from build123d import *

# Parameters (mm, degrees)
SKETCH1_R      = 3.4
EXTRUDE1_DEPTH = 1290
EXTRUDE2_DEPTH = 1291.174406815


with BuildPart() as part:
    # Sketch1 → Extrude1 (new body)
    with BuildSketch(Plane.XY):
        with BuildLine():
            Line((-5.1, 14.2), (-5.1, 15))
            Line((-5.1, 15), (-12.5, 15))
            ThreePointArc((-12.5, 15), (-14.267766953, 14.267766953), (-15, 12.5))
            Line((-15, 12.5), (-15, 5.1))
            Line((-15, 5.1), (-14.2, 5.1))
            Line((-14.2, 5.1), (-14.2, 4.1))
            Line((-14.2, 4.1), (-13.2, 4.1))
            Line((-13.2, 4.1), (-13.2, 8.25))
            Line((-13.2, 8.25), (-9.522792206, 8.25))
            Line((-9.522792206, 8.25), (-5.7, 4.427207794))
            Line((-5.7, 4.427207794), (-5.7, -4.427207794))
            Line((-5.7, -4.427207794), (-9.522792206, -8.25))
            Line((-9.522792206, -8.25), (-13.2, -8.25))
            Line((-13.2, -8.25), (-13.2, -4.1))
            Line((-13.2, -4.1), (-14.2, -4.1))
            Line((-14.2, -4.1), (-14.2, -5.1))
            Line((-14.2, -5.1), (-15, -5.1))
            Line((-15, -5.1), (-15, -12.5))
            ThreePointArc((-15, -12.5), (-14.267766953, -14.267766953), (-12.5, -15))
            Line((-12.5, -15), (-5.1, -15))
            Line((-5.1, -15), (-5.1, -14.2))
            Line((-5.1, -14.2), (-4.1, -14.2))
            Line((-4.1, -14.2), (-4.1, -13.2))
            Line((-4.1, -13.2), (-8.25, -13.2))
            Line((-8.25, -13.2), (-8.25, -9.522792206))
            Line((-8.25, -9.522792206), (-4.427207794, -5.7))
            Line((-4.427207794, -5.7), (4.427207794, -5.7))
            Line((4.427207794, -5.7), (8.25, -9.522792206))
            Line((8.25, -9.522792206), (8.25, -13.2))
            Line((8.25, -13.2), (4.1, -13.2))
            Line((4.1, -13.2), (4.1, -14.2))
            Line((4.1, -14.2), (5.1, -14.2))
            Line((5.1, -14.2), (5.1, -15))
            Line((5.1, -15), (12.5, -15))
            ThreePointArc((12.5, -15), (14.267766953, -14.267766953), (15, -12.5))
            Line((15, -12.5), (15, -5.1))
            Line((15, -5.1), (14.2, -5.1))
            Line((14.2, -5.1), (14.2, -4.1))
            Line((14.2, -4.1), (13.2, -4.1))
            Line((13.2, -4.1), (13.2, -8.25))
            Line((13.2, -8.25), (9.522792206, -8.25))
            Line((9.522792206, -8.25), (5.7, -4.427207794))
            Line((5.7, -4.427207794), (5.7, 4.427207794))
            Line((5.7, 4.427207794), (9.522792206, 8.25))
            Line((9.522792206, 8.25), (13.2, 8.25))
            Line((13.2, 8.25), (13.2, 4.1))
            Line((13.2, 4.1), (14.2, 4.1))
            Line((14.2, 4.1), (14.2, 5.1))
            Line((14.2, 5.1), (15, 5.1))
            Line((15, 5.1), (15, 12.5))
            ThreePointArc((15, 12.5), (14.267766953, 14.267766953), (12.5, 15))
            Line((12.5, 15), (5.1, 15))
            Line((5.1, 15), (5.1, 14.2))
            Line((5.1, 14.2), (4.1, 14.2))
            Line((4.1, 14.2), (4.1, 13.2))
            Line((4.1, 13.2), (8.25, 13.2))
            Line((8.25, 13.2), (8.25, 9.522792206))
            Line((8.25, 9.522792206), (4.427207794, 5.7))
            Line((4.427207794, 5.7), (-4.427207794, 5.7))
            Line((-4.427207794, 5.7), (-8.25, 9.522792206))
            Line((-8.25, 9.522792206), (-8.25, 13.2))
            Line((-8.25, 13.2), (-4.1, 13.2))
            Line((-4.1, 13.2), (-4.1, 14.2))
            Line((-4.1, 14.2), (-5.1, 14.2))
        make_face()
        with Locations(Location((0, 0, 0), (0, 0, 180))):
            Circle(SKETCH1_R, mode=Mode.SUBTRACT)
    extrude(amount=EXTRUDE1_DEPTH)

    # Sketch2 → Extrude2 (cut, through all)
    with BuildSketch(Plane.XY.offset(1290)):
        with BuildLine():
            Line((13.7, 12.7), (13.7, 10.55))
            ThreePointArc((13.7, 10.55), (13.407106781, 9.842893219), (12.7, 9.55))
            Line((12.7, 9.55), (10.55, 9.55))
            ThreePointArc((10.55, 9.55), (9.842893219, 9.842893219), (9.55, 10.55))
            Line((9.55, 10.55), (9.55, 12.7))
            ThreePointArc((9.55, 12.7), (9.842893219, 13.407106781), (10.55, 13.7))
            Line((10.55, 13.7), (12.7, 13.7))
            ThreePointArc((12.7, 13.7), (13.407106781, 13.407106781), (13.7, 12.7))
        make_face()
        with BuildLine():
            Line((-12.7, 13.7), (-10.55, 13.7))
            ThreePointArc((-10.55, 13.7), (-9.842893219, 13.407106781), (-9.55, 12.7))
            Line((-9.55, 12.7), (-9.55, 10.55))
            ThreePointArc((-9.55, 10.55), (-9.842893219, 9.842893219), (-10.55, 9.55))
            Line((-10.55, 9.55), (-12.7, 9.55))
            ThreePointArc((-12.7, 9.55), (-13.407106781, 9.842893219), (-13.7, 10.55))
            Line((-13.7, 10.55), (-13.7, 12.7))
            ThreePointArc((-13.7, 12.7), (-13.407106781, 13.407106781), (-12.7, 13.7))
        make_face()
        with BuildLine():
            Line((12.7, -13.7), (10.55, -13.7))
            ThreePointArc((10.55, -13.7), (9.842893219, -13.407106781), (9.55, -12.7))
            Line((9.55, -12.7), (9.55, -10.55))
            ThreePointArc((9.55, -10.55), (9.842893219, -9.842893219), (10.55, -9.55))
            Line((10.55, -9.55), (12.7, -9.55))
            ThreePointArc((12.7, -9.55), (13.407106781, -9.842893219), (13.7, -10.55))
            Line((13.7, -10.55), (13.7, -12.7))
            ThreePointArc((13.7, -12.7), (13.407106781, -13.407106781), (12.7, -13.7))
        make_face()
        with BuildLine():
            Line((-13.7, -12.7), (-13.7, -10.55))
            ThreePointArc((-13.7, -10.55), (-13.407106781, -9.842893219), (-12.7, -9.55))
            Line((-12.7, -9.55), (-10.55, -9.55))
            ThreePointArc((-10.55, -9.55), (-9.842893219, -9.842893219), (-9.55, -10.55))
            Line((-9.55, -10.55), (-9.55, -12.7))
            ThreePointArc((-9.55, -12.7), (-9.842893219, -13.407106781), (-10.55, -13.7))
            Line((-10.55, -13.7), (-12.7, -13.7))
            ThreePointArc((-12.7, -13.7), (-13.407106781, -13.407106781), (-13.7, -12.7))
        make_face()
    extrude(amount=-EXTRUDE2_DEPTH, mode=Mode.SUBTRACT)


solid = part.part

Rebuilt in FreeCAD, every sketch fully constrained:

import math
import FreeCAD as App
import Part
import Sketcher
Q = App.Units.Quantity

doc = App.newDocument("Part")
body = doc.addObject("PartDesign::Body", "Body")

# Sketch on XY plane
sketch1 = doc.addObject("Sketcher::SketchObject", "Sketch")
body.addObject(sketch1)
sketch1.AttachmentSupport = (doc.XY_Plane, [""])
sketch1.MapMode = "FlatFace"
sketch1.addGeometry([
    Part.LineSegment(App.Vector(-5.1, 14.2, 0), App.Vector(-5.1, 15, 0)),  # 0
    Part.LineSegment(App.Vector(-5.1, 15, 0), App.Vector(-12.5, 15, 0)),  # 1
    Part.ArcOfCircle(Part.Circle(App.Vector(-12.5, 12.5, 0), App.Vector(0, 0, 1), 2.5), math.radians(90), math.radians(180)),  # 2
    Part.LineSegment(App.Vector(-15, 12.5, 0), App.Vector(-15, 5.1, 0)),  # 3
    Part.LineSegment(App.Vector(-15, 5.1, 0), App.Vector(-14.2, 5.1, 0)),  # 4
    Part.LineSegment(App.Vector(-14.2, 5.1, 0), App.Vector(-14.2, 4.1, 0)),  # 5
    Part.LineSegment(App.Vector(-14.2, 4.1, 0), App.Vector(-13.2, 4.1, 0)),  # 6
    Part.LineSegment(App.Vector(-13.2, 4.1, 0), App.Vector(-13.2, 8.2, 0)),  # 7
    Part.LineSegment(App.Vector(-13.2, 8.2, 0), App.Vector(-9.5, 8.2, 0)),  # 8
    Part.LineSegment(App.Vector(-9.5, 8.2, 0), App.Vector(-5.7, 4.4, 0)),  # 9
    Part.LineSegment(App.Vector(-5.7, 4.4, 0), App.Vector(-5.7, -4.4, 0)),  # 10
    Part.LineSegment(App.Vector(-5.7, -4.4, 0), App.Vector(-9.5, -8.2, 0)),  # 11
    Part.LineSegment(App.Vector(-9.5, -8.2, 0), App.Vector(-13.2, -8.2, 0)),  # 12
    Part.LineSegment(App.Vector(-13.2, -8.2, 0), App.Vector(-13.2, -4.1, 0)),  # 13
    Part.LineSegment(App.Vector(-13.2, -4.1, 0), App.Vector(-14.2, -4.1, 0)),  # 14
    Part.LineSegment(App.Vector(-14.2, -4.1, 0), App.Vector(-14.2, -5.1, 0)),  # 15
    Part.LineSegment(App.Vector(-14.2, -5.1, 0), App.Vector(-15, -5.1, 0)),  # 16
    Part.LineSegment(App.Vector(-15, -5.1, 0), App.Vector(-15, -12.5, 0)),  # 17
    Part.ArcOfCircle(Part.Circle(App.Vector(-12.5, -12.5, 0), App.Vector(0, 0, 1), 2.5), math.radians(180), math.radians(270)),  # 18
    Part.LineSegment(App.Vector(-12.5, -15, 0), App.Vector(-5.1, -15, 0)),  # 19
    Part.LineSegment(App.Vector(-5.1, -15, 0), App.Vector(-5.1, -14.2, 0)),  # 20
    Part.LineSegment(App.Vector(-5.1, -14.2, 0), App.Vector(-4.1, -14.2, 0)),  # 21
    Part.LineSegment(App.Vector(-4.1, -14.2, 0), App.Vector(-4.1, -13.2, 0)),  # 22
    Part.LineSegment(App.Vector(-4.1, -13.2, 0), App.Vector(-8.2, -13.2, 0)),  # 23
    Part.LineSegment(App.Vector(-8.2, -13.2, 0), App.Vector(-8.2, -9.5, 0)),  # 24
    Part.LineSegment(App.Vector(-8.2, -9.5, 0), App.Vector(-4.4, -5.7, 0)),  # 25
    Part.LineSegment(App.Vector(-4.4, -5.7, 0), App.Vector(4.4, -5.7, 0)),  # 26
    Part.LineSegment(App.Vector(4.4, -5.7, 0), App.Vector(8.2, -9.5, 0)),  # 27
    Part.LineSegment(App.Vector(8.2, -9.5, 0), App.Vector(8.2, -13.2, 0)),  # 28
    Part.LineSegment(App.Vector(8.2, -13.2, 0), App.Vector(4.1, -13.2, 0)),  # 29
    Part.LineSegment(App.Vector(4.1, -13.2, 0), App.Vector(4.1, -14.2, 0)),  # 30
    Part.LineSegment(App.Vector(4.1, -14.2, 0), App.Vector(5.1, -14.2, 0)),  # 31
    Part.LineSegment(App.Vector(5.1, -14.2, 0), App.Vector(5.1, -15, 0)),  # 32
    Part.LineSegment(App.Vector(5.1, -15, 0), App.Vector(12.5, -15, 0)),  # 33
    Part.ArcOfCircle(Part.Circle(App.Vector(12.5, -12.5, 0), App.Vector(0, 0, 1), 2.5), math.radians(-90), math.radians(0)),  # 34
    Part.LineSegment(App.Vector(15, -12.5, 0), App.Vector(15, -5.1, 0)),  # 35
    Part.LineSegment(App.Vector(15, -5.1, 0), App.Vector(14.2, -5.1, 0)),  # 36
    Part.LineSegment(App.Vector(14.2, -5.1, 0), App.Vector(14.2, -4.1, 0)),  # 37
    Part.LineSegment(App.Vector(14.2, -4.1, 0), App.Vector(13.2, -4.1, 0)),  # 38
    Part.LineSegment(App.Vector(13.2, -4.1, 0), App.Vector(13.2, -8.2, 0)),  # 39
    Part.LineSegment(App.Vector(13.2, -8.2, 0), App.Vector(9.5, -8.2, 0)),  # 40
    Part.LineSegment(App.Vector(9.5, -8.2, 0), App.Vector(5.7, -4.4, 0)),  # 41
    Part.LineSegment(App.Vector(5.7, -4.4, 0), App.Vector(5.7, 4.4, 0)),  # 42
    Part.LineSegment(App.Vector(5.7, 4.4, 0), App.Vector(9.5, 8.2, 0)),  # 43
    Part.LineSegment(App.Vector(9.5, 8.2, 0), App.Vector(13.2, 8.2, 0)),  # 44
    Part.LineSegment(App.Vector(13.2, 8.2, 0), App.Vector(13.2, 4.1, 0)),  # 45
    Part.LineSegment(App.Vector(13.2, 4.1, 0), App.Vector(14.2, 4.1, 0)),  # 46
    Part.LineSegment(App.Vector(14.2, 4.1, 0), App.Vector(14.2, 5.1, 0)),  # 47
    Part.LineSegment(App.Vector(14.2, 5.1, 0), App.Vector(15, 5.1, 0)),  # 48
    Part.LineSegment(App.Vector(15, 5.1, 0), App.Vector(15, 12.5, 0)),  # 49
    Part.ArcOfCircle(Part.Circle(App.Vector(12.5, 12.5, 0), App.Vector(0, 0, 1), 2.5), math.radians(0), math.radians(90)),  # 50
    Part.LineSegment(App.Vector(12.5, 15, 0), App.Vector(5.1, 15, 0)),  # 51
    Part.LineSegment(App.Vector(5.1, 15, 0), App.Vector(5.1, 14.2, 0)),  # 52
    Part.LineSegment(App.Vector(5.1, 14.2, 0), App.Vector(4.1, 14.2, 0)),  # 53
    Part.LineSegment(App.Vector(4.1, 14.2, 0), App.Vector(4.1, 13.2, 0)),  # 54
    Part.LineSegment(App.Vector(4.1, 13.2, 0), App.Vector(8.2, 13.2, 0)),  # 55
    Part.LineSegment(App.Vector(8.2, 13.2, 0), App.Vector(8.2, 9.5, 0)),  # 56
    Part.LineSegment(App.Vector(8.2, 9.5, 0), App.Vector(4.4, 5.7, 0)),  # 57
    Part.LineSegment(App.Vector(4.4, 5.7, 0), App.Vector(-4.4, 5.7, 0)),  # 58
    Part.LineSegment(App.Vector(-4.4, 5.7, 0), App.Vector(-8.2, 9.5, 0)),  # 59
    Part.LineSegment(App.Vector(-8.2, 9.5, 0), App.Vector(-8.2, 13.2, 0)),  # 60
    Part.LineSegment(App.Vector(-8.2, 13.2, 0), App.Vector(-4.1, 13.2, 0)),  # 61
    Part.LineSegment(App.Vector(-4.1, 13.2, 0), App.Vector(-4.1, 14.2, 0)),  # 62
    Part.LineSegment(App.Vector(-4.1, 14.2, 0), App.Vector(-5.1, 14.2, 0)),  # 63
    Part.Circle(App.Vector(0, 0, 0), App.Vector(0, 0, 1), 3.4),  # 64
], False)
sketch1.addConstraint([
    Sketcher.Constraint("Coincident", 0, 2, 1, 1),
    Sketcher.Constraint("Tangent", 1, 2, 2, 1),
    Sketcher.Constraint("Tangent", 2, 2, 3, 1),
    Sketcher.Constraint("Coincident", 3, 2, 4, 1),
    Sketcher.Constraint("Coincident", 4, 2, 5, 1),
    Sketcher.Constraint("Coincident", 5, 2, 6, 1),
    Sketcher.Constraint("Coincident", 6, 2, 7, 1),
    Sketcher.Constraint("Coincident", 7, 2, 8, 1),
    Sketcher.Constraint("Coincident", 8, 2, 9, 1),
    Sketcher.Constraint("Coincident", 9, 2, 10, 1),
    Sketcher.Constraint("Coincident", 10, 2, 11, 1),
    Sketcher.Constraint("Coincident", 11, 2, 12, 1),
    Sketcher.Constraint("Coincident", 12, 2, 13, 1),
    Sketcher.Constraint("Coincident", 13, 2, 14, 1),
    Sketcher.Constraint("Coincident", 14, 2, 15, 1),
    Sketcher.Constraint("Coincident", 15, 2, 16, 1),
    Sketcher.Constraint("Coincident", 16, 2, 17, 1),
    Sketcher.Constraint("Tangent", 17, 2, 18, 1),
    Sketcher.Constraint("Tangent", 18, 2, 19, 1),
    Sketcher.Constraint("Coincident", 19, 2, 20, 1),
    Sketcher.Constraint("Coincident", 20, 2, 21, 1),
    Sketcher.Constraint("Coincident", 21, 2, 22, 1),
    Sketcher.Constraint("Coincident", 22, 2, 23, 1),
    Sketcher.Constraint("Coincident", 23, 2, 24, 1),
    Sketcher.Constraint("Coincident", 24, 2, 25, 1),
    Sketcher.Constraint("Coincident", 25, 2, 26, 1),
    Sketcher.Constraint("Coincident", 26, 2, 27, 1),
    Sketcher.Constraint("Coincident", 27, 2, 28, 1),
    Sketcher.Constraint("Coincident", 28, 2, 29, 1),
    Sketcher.Constraint("Coincident", 29, 2, 30, 1),
    Sketcher.Constraint("Coincident", 30, 2, 31, 1),
    Sketcher.Constraint("Coincident", 31, 2, 32, 1),
    Sketcher.Constraint("Coincident", 32, 2, 33, 1),
    Sketcher.Constraint("Tangent", 33, 2, 34, 1),
    Sketcher.Constraint("Tangent", 34, 2, 35, 1),
    Sketcher.Constraint("Coincident", 35, 2, 36, 1),
    Sketcher.Constraint("Coincident", 36, 2, 37, 1),
    Sketcher.Constraint("Coincident", 37, 2, 38, 1),
    Sketcher.Constraint("Coincident", 38, 2, 39, 1),
    Sketcher.Constraint("Coincident", 39, 2, 40, 1),
    Sketcher.Constraint("Coincident", 40, 2, 41, 1),
    Sketcher.Constraint("Coincident", 41, 2, 42, 1),
    Sketcher.Constraint("Coincident", 42, 2, 43, 1),
    Sketcher.Constraint("Coincident", 43, 2, 44, 1),
    Sketcher.Constraint("Coincident", 44, 2, 45, 1),
    Sketcher.Constraint("Coincident", 45, 2, 46, 1),
    Sketcher.Constraint("Coincident", 46, 2, 47, 1),
    Sketcher.Constraint("Coincident", 47, 2, 48, 1),
    Sketcher.Constraint("Coincident", 48, 2, 49, 1),
    Sketcher.Constraint("Tangent", 49, 2, 50, 1),
    Sketcher.Constraint("Tangent", 50, 2, 51, 1),
    Sketcher.Constraint("Coincident", 51, 2, 52, 1),
    Sketcher.Constraint("Coincident", 52, 2, 53, 1),
    Sketcher.Constraint("Coincident", 53, 2, 54, 1),
    Sketcher.Constraint("Coincident", 54, 2, 55, 1),
    Sketcher.Constraint("Coincident", 55, 2, 56, 1),
    Sketcher.Constraint("Coincident", 56, 2, 57, 1),
    Sketcher.Constraint("Coincident", 57, 2, 58, 1),
    Sketcher.Constraint("Coincident", 58, 2, 59, 1),
    Sketcher.Constraint("Coincident", 59, 2, 60, 1),
    Sketcher.Constraint("Coincident", 60, 2, 61, 1),
    Sketcher.Constraint("Coincident", 61, 2, 62, 1),
    Sketcher.Constraint("Coincident", 62, 2, 63, 1),
    Sketcher.Constraint("Coincident", 63, 2, 0, 1),
    Sketcher.Constraint("Vertical", 0),
    Sketcher.Constraint("Horizontal", 1),
    Sketcher.Constraint("Vertical", 3),
    Sketcher.Constraint("Horizontal", 4),
    Sketcher.Constraint("Vertical", 5),
    Sketcher.Constraint("Horizontal", 6),
    Sketcher.Constraint("Vertical", 7),
    Sketcher.Constraint("Horizontal", 8),
    Sketcher.Constraint("Vertical", 10),
    Sketcher.Constraint("Horizontal", 12),
    Sketcher.Constraint("Vertical", 13),
    Sketcher.Constraint("Horizontal", 14),
    Sketcher.Constraint("Vertical", 15),
    Sketcher.Constraint("Horizontal", 16),
    Sketcher.Constraint("Vertical", 17),
    Sketcher.Constraint("Horizontal", 19),
    Sketcher.Constraint("Vertical", 20),
    Sketcher.Constraint("Horizontal", 21),
    Sketcher.Constraint("Vertical", 22),
    Sketcher.Constraint("Horizontal", 23),
    Sketcher.Constraint("Vertical", 24),
    Sketcher.Constraint("Horizontal", 26),
    Sketcher.Constraint("Vertical", 28),
    Sketcher.Constraint("Horizontal", 29),
    Sketcher.Constraint("Vertical", 30),
    Sketcher.Constraint("Horizontal", 31),
    Sketcher.Constraint("Vertical", 32),
    Sketcher.Constraint("Horizontal", 33),
    Sketcher.Constraint("Vertical", 35),
    Sketcher.Constraint("Horizontal", 36),
    Sketcher.Constraint("Vertical", 37),
    Sketcher.Constraint("Horizontal", 38),
    Sketcher.Constraint("Vertical", 39),
    Sketcher.Constraint("Horizontal", 40),
    Sketcher.Constraint("Vertical", 42),
    Sketcher.Constraint("Horizontal", 44),
    Sketcher.Constraint("Vertical", 45),
    Sketcher.Constraint("Horizontal", 46),
    Sketcher.Constraint("Vertical", 47),
    Sketcher.Constraint("Horizontal", 48),
    Sketcher.Constraint("Vertical", 49),
    Sketcher.Constraint("Horizontal", 51),
    Sketcher.Constraint("Vertical", 52),
    Sketcher.Constraint("Horizontal", 53),
    Sketcher.Constraint("Vertical", 54),
    Sketcher.Constraint("Horizontal", 55),
    Sketcher.Constraint("Vertical", 56),
    Sketcher.Constraint("Horizontal", 58),
    Sketcher.Constraint("Vertical", 60),
    Sketcher.Constraint("Horizontal", 61),
    Sketcher.Constraint("Vertical", 62),
    Sketcher.Constraint("Horizontal", 63),
    Sketcher.Constraint("Coincident", 64, 3, -1, 1),
    Sketcher.Constraint("Equal", 2, 18),
    Sketcher.Constraint("Equal", 18, 34),
    Sketcher.Constraint("Equal", 34, 50),
    Sketcher.Constraint("Symmetric", 2, 3, 34, 3, -1, 1),
    Sketcher.Constraint("Symmetric", 18, 3, 50, 3, -1, 1),
    Sketcher.Constraint("Symmetric", 4, 2, 36, 2, -1, 1),
    Sketcher.Constraint("Symmetric", 6, 2, 38, 2, -1, 1),
    Sketcher.Constraint("Symmetric", 8, 2, 40, 2, -1, 1),
    Sketcher.Constraint("Symmetric", 9, 2, 41, 2, -1, 1),
    Sketcher.Constraint("Symmetric", 11, 2, 43, 2, -1, 1),
    Sketcher.Constraint("Symmetric", 13, 2, 45, 2, -1, 1),
    Sketcher.Constraint("Symmetric", 15, 2, 47, 2, -1, 1),
    Sketcher.Constraint("Symmetric", 20, 2, 52, 2, -1, 1),
    Sketcher.Constraint("Symmetric", 22, 2, 54, 2, -1, 1),
    Sketcher.Constraint("Symmetric", 24, 2, 56, 2, -1, 1),
    Sketcher.Constraint("Symmetric", 25, 2, 57, 2, -1, 1),
    Sketcher.Constraint("Symmetric", 27, 2, 59, 2, -1, 1),
    Sketcher.Constraint("Symmetric", 29, 2, 61, 2, -1, 1),
    Sketcher.Constraint("Symmetric", 31, 2, 63, 2, -1, 1),
    Sketcher.Constraint("Symmetric", 18, 3, 34, 3, -2),
    Sketcher.Constraint("Symmetric", 24, 2, 27, 2, -2),
    Sketcher.Constraint("Symmetric", 22, 2, 29, 2, -2),
    Sketcher.Constraint("Symmetric", 20, 2, 31, 2, -2),
    Sketcher.Constraint("Symmetric", 15, 2, 36, 2, -2),
    Sketcher.Constraint("Symmetric", 13, 2, 38, 2, -2),
    Sketcher.Constraint("Symmetric", 11, 2, 40, 2, -2),
    Sketcher.Constraint("Perpendicular", 9, 11),
    Sketcher.Constraint("Parallel", 11, 25),
    Sketcher.Constraint("Perpendicular", 25, 27),
    Sketcher.Constraint("Perpendicular", 41, 43),
    Sketcher.Constraint("Perpendicular", 57, 59),
    Sketcher.Constraint("Horizontal", 10, 2, 41, 2),
    Sketcher.Constraint("Equal", 14, 21),
    Sketcher.Constraint("Equal", 48, 0),
    Sketcher.Constraint("Equal", 51, 3),
    Sketcher.Constraint("Equal", 63, 5),
    Sketcher.Constraint("Equal", 61, 7),
    Sketcher.Constraint("Equal", 58, 10),
    Sketcher.Constraint("Equal", 15, 22),
    Sketcher.Constraint("Equal", 44, 24),
    Sketcher.Constraint("Equal", 11, 25),
    Sketcher.Constraint("Diameter", 64, Q("6.8 mm")),
    Sketcher.Constraint("Radius", 2, Q("2.5 mm")),
    Sketcher.Constraint("DistanceX", 6, 1, 6, 2, Q("1 mm")),
    Sketcher.Constraint("DistanceX", 1, 2, 1, 1, Q("7.4 mm")),
    Sketcher.Constraint("DistanceX", 4, 1, 4, 2, Q("0.8 mm")),
    Sketcher.Constraint("DistanceY", -1, 1, 0, 2, Q("15 mm")),
    Sketcher.Constraint("DistanceX", 23, 2, 23, 1, Q("4.15 mm")),
    Sketcher.Constraint("DistanceX", 9, 2, -1, 1, Q("5.7 mm")),
    Sketcher.Constraint("DistanceX", 8, 1, 8, 2, Q("3.677208 mm")),
])
pad1 = doc.addObject("PartDesign::Pad", "Pad")
body.addObject(pad1)
pad1.Profile = sketch1
pad1.Length = 1290

# Sketch on XY plane
sketch2 = doc.addObject("Sketcher::SketchObject", "Sketch001")
body.addObject(sketch2)
sketch2.AttachmentSupport = (doc.XY_Plane, [""])
sketch2.MapMode = "FlatFace"
sketch2.AttachmentOffset = App.Placement(App.Vector(0, 0, 1290), App.Rotation())
sketch2.addGeometry([
    Part.LineSegment(App.Vector(13.7, 10.6, 0), App.Vector(13.7, 12.7, 0)),  # 0
    Part.ArcOfCircle(Part.Circle(App.Vector(12.7, 12.7, 0), App.Vector(0, 0, 1), 1), math.radians(0), math.radians(90)),  # 1
    Part.LineSegment(App.Vector(12.7, 13.7, 0), App.Vector(10.6, 13.7, 0)),  # 2
    Part.ArcOfCircle(Part.Circle(App.Vector(10.6, 12.7, 0), App.Vector(0, 0, 1), 1), math.radians(90), math.radians(180)),  # 3
    Part.LineSegment(App.Vector(9.6, 12.7, 0), App.Vector(9.6, 10.6, 0)),  # 4
    Part.ArcOfCircle(Part.Circle(App.Vector(10.6, 10.6, 0), App.Vector(0, 0, 1), 1), math.radians(-180), math.radians(-90)),  # 5
    Part.LineSegment(App.Vector(10.6, 9.6, 0), App.Vector(12.7, 9.6, 0)),  # 6
    Part.ArcOfCircle(Part.Circle(App.Vector(12.7, 10.6, 0), App.Vector(0, 0, 1), 1), math.radians(-90), math.radians(0)),  # 7
    Part.LineSegment(App.Vector(-10.6, 13.7, 0), App.Vector(-12.7, 13.7, 0)),  # 8
    Part.ArcOfCircle(Part.Circle(App.Vector(-12.7, 12.7, 0), App.Vector(0, 0, 1), 1), math.radians(90), math.radians(180)),  # 9
    Part.LineSegment(App.Vector(-13.7, 12.7, 0), App.Vector(-13.7, 10.6, 0)),  # 10
    Part.ArcOfCircle(Part.Circle(App.Vector(-12.7, 10.6, 0), App.Vector(0, 0, 1), 1), math.radians(-180), math.radians(-90)),  # 11
    Part.LineSegment(App.Vector(-12.7, 9.6, 0), App.Vector(-10.6, 9.6, 0)),  # 12
    Part.ArcOfCircle(Part.Circle(App.Vector(-10.6, 10.6, 0), App.Vector(0, 0, 1), 1), math.radians(-90), math.radians(0)),  # 13
    Part.LineSegment(App.Vector(-9.6, 10.6, 0), App.Vector(-9.6, 12.7, 0)),  # 14
    Part.ArcOfCircle(Part.Circle(App.Vector(-10.6, 12.7, 0), App.Vector(0, 0, 1), 1), math.radians(0), math.radians(90)),  # 15
    Part.LineSegment(App.Vector(10.6, -13.7, 0), App.Vector(12.7, -13.7, 0)),  # 16
    Part.ArcOfCircle(Part.Circle(App.Vector(12.7, -12.7, 0), App.Vector(0, 0, 1), 1), math.radians(-90), math.radians(0)),  # 17
    Part.LineSegment(App.Vector(13.7, -12.7, 0), App.Vector(13.7, -10.6, 0)),  # 18
    Part.ArcOfCircle(Part.Circle(App.Vector(12.7, -10.6, 0), App.Vector(0, 0, 1), 1), math.radians(0), math.radians(90)),  # 19
    Part.LineSegment(App.Vector(12.7, -9.6, 0), App.Vector(10.6, -9.6, 0)),  # 20
    Part.ArcOfCircle(Part.Circle(App.Vector(10.6, -10.6, 0), App.Vector(0, 0, 1), 1), math.radians(90), math.radians(180)),  # 21
    Part.LineSegment(App.Vector(9.6, -10.6, 0), App.Vector(9.6, -12.7, 0)),  # 22
    Part.ArcOfCircle(Part.Circle(App.Vector(10.6, -12.7, 0), App.Vector(0, 0, 1), 1), math.radians(-180), math.radians(-90)),  # 23
    Part.LineSegment(App.Vector(-13.7, -10.6, 0), App.Vector(-13.7, -12.7, 0)),  # 24
    Part.ArcOfCircle(Part.Circle(App.Vector(-12.7, -12.7, 0), App.Vector(0, 0, 1), 1), math.radians(-180), math.radians(-90)),  # 25
    Part.LineSegment(App.Vector(-12.7, -13.7, 0), App.Vector(-10.6, -13.7, 0)),  # 26
    Part.ArcOfCircle(Part.Circle(App.Vector(-10.6, -12.7, 0), App.Vector(0, 0, 1), 1), math.radians(-90), math.radians(0)),  # 27
    Part.LineSegment(App.Vector(-9.6, -12.7, 0), App.Vector(-9.6, -10.6, 0)),  # 28
    Part.ArcOfCircle(Part.Circle(App.Vector(-10.6, -10.6, 0), App.Vector(0, 0, 1), 1), math.radians(0), math.radians(90)),  # 29
    Part.LineSegment(App.Vector(-10.6, -9.6, 0), App.Vector(-12.7, -9.6, 0)),  # 30
    Part.ArcOfCircle(Part.Circle(App.Vector(-12.7, -10.6, 0), App.Vector(0, 0, 1), 1), math.radians(90), math.radians(180)),  # 31
], False)
sketch2.addConstraint([
    Sketcher.Constraint("Tangent", 0, 2, 1, 1),
    Sketcher.Constraint("Tangent", 1, 2, 2, 1),
    Sketcher.Constraint("Tangent", 2, 2, 3, 1),
    Sketcher.Constraint("Tangent", 3, 2, 4, 1),
    Sketcher.Constraint("Tangent", 4, 2, 5, 1),
    Sketcher.Constraint("Tangent", 5, 2, 6, 1),
    Sketcher.Constraint("Tangent", 6, 2, 7, 1),
    Sketcher.Constraint("Tangent", 7, 2, 0, 1),
    Sketcher.Constraint("Tangent", 8, 2, 9, 1),
    Sketcher.Constraint("Tangent", 9, 2, 10, 1),
    Sketcher.Constraint("Tangent", 10, 2, 11, 1),
    Sketcher.Constraint("Tangent", 11, 2, 12, 1),
    Sketcher.Constraint("Tangent", 12, 2, 13, 1),
    Sketcher.Constraint("Tangent", 13, 2, 14, 1),
    Sketcher.Constraint("Tangent", 14, 2, 15, 1),
    Sketcher.Constraint("Tangent", 15, 2, 8, 1),
    Sketcher.Constraint("Tangent", 16, 2, 17, 1),
    Sketcher.Constraint("Tangent", 17, 2, 18, 1),
    Sketcher.Constraint("Tangent", 18, 2, 19, 1),
    Sketcher.Constraint("Tangent", 19, 2, 20, 1),
    Sketcher.Constraint("Tangent", 20, 2, 21, 1),
    Sketcher.Constraint("Tangent", 21, 2, 22, 1),
    Sketcher.Constraint("Tangent", 22, 2, 23, 1),
    Sketcher.Constraint("Tangent", 23, 2, 16, 1),
    Sketcher.Constraint("Tangent", 24, 2, 25, 1),
    Sketcher.Constraint("Tangent", 25, 2, 26, 1),
    Sketcher.Constraint("Tangent", 26, 2, 27, 1),
    Sketcher.Constraint("Tangent", 27, 2, 28, 1),
    Sketcher.Constraint("Tangent", 28, 2, 29, 1),
    Sketcher.Constraint("Tangent", 29, 2, 30, 1),
    Sketcher.Constraint("Tangent", 30, 2, 31, 1),
    Sketcher.Constraint("Tangent", 31, 2, 24, 1),
    Sketcher.Constraint("Vertical", 0),
    Sketcher.Constraint("Horizontal", 2),
    Sketcher.Constraint("Vertical", 4),
    Sketcher.Constraint("Horizontal", 6),
    Sketcher.Constraint("Horizontal", 8),
    Sketcher.Constraint("Vertical", 10),
    Sketcher.Constraint("Horizontal", 12),
    Sketcher.Constraint("Vertical", 14),
    Sketcher.Constraint("Horizontal", 16),
    Sketcher.Constraint("Vertical", 18),
    Sketcher.Constraint("Horizontal", 20),
    Sketcher.Constraint("Vertical", 22),
    Sketcher.Constraint("Vertical", 24),
    Sketcher.Constraint("Horizontal", 26),
    Sketcher.Constraint("Vertical", 28),
    Sketcher.Constraint("Horizontal", 30),
    Sketcher.Constraint("Equal", 1, 3),
    Sketcher.Constraint("Equal", 3, 5),
    Sketcher.Constraint("Equal", 5, 7),
    Sketcher.Constraint("Equal", 7, 9),
    Sketcher.Constraint("Equal", 9, 11),
    Sketcher.Constraint("Equal", 11, 13),
    Sketcher.Constraint("Equal", 13, 15),
    Sketcher.Constraint("Equal", 15, 17),
    Sketcher.Constraint("Equal", 17, 19),
    Sketcher.Constraint("Equal", 19, 21),
    Sketcher.Constraint("Equal", 21, 23),
    Sketcher.Constraint("Equal", 23, 25),
    Sketcher.Constraint("Equal", 25, 27),
    Sketcher.Constraint("Equal", 27, 29),
    Sketcher.Constraint("Equal", 29, 31),
    Sketcher.Constraint("Symmetric", 9, 3, 17, 3, -1, 1),
    Sketcher.Constraint("Symmetric", 13, 3, 21, 3, -1, 1),
    Sketcher.Constraint("Symmetric", 1, 3, 25, 3, -1, 1),
    Sketcher.Constraint("Symmetric", 5, 3, 29, 3, -1, 1),
    Sketcher.Constraint("Symmetric", 1, 3, 9, 3, -2),
    Sketcher.Constraint("Symmetric", 5, 3, 13, 3, -2),
    Sketcher.Constraint("Equal", 30, 0),
    Sketcher.Constraint("Radius", 1, Q("1 mm")),
    Sketcher.Constraint("DistanceX", 2, 2, 2, 1, Q("2.15 mm")),
    Sketcher.Constraint("DistanceX", -1, 1, 1, 3, Q("12.7 mm")),
    Sketcher.Constraint("DistanceY", -1, 1, 1, 3, Q("12.7 mm")),
])
pocket1 = doc.addObject("PartDesign::Pocket", "Pocket")
body.addObject(pocket1)
pocket1.Profile = sketch2
pocket1.Type = "ThroughAll"

doc.recompute()
